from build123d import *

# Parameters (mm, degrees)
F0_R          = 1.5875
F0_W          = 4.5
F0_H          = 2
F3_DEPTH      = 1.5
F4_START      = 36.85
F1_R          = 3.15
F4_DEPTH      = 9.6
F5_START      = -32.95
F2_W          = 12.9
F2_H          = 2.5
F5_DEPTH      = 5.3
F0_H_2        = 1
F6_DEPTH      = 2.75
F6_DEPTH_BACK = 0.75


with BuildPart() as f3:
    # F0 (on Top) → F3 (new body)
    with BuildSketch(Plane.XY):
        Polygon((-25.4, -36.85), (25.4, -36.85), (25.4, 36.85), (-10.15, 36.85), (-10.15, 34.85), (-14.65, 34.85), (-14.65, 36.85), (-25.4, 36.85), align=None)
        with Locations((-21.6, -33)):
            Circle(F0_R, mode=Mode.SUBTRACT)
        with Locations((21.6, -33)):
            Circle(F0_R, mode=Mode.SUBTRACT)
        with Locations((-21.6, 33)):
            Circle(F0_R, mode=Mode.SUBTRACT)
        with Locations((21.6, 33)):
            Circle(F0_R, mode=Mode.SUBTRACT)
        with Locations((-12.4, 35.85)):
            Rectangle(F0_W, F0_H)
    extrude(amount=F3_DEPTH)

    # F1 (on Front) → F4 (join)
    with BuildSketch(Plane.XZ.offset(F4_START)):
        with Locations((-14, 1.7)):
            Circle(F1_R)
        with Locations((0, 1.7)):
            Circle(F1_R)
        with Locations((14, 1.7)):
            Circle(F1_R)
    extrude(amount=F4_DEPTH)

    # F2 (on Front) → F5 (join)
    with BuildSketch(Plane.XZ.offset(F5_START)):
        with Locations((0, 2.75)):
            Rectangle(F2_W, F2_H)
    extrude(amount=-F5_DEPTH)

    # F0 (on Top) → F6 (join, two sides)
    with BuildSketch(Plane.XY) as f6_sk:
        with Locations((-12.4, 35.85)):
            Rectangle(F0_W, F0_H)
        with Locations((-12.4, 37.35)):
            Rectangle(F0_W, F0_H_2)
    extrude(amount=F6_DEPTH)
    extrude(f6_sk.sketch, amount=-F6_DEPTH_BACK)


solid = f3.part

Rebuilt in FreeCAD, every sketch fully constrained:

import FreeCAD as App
import Part
import Sketcher
from FreeCAD import Vector
Q = App.Units.Quantity


def add_polygon(sketch, points):
    """Adds a closed chain of lines whose ends are joined by coincident constraints."""
    first, n = sketch.GeometryCount, len(points)
    for a, b in zip(points, points[1:] + points[:1]):
        sketch.addGeometry(Part.LineSegment(App.Vector(*a, 0), App.Vector(*b, 0)), False)
    for i in range(n):
        sketch.addConstraint(Sketcher.Constraint("Coincident", first + i, 2, first + (i + 1) % n, 1))

doc = App.newDocument("Part")
body = doc.addObject("PartDesign::Body", "Body")

sketch1 = body.newObject("Sketcher::SketchObject", "Sketch")
sketch1.AttachmentSupport = (doc.getObject("XY_Plane"), [""])
sketch1.MapMode = "FlatFace"
add_polygon(sketch1, [(-25.4, -36.85), (25.4, -36.85), (25.4, 36.85), (-25.4, 36.85)])
sketch1.addGeometry(Part.Circle(Vector(-21.6, -33, 0), Vector(0, 0, 1), 1.5875), False)
sketch1.addGeometry(Part.Circle(Vector(21.6, -33, 0), Vector(0, 0, 1), 1.5875), False)
sketch1.addGeometry(Part.Circle(Vector(-21.6, 33, 0), Vector(0, 0, 1), 1.5875), False)
sketch1.addGeometry(Part.Circle(Vector(21.6, 33, 0), Vector(0, 0, 1), 1.5875), False)
sketch1.addConstraint(Sketcher.Constraint("Horizontal", 0))
sketch1.addConstraint(Sketcher.Constraint("Vertical", 1))
sketch1.addConstraint(Sketcher.Constraint("Horizontal", 2))
sketch1.addConstraint(Sketcher.Constraint("Vertical", 3))
sketch1.addConstraint(Sketcher.Constraint("Equal", 4, 5))
sketch1.addConstraint(Sketcher.Constraint("Equal", 5, 6))
sketch1.addConstraint(Sketcher.Constraint("Equal", 6, 7))
sketch1.addConstraint(Sketcher.Constraint("Symmetric", 5, 3, 6, 3, -1, 1))
sketch1.addConstraint(Sketcher.Constraint("Symmetric", 4, 3, 7, 3, -1, 1))
sketch1.addConstraint(Sketcher.Constraint("Symmetric", 0, 2, 2, 2, -1, 1))
sketch1.addConstraint(Sketcher.Constraint("Symmetric", 4, 3, 5, 3, -2))
sketch1.addConstraint(Sketcher.Constraint("Diameter", 4, Q("3.175 mm")))
sketch1.addConstraint(Sketcher.Constraint("DistanceX", 0, 1, 0, 2, Q("50.8 mm")))
sketch1.addConstraint(Sketcher.Constraint("DistanceY", 1, 1, 1, 2, Q("73.7 mm")))
sketch1.addConstraint(Sketcher.Constraint("DistanceY", 4, 3, -1, 1, Q("33 mm")))
sketch1.addConstraint(Sketcher.Constraint("DistanceX", 4, 3, 0, 2, Q("47 mm")))
pad1 = body.newObject("PartDesign::Pad", "Pad")
pad1.Profile = sketch1
pad1.Length = 1.5

sketch2 = body.newObject("Sketcher::SketchObject", "Sketch001")
sketch2.AttachmentSupport = (doc.getObject("XZ_Plane"), [""])
sketch2.MapMode = "FlatFace"
sketch2.AttachmentOffset = App.Placement(Vector(0, 0, 36.85), App.Rotation())
sketch2.addGeometry(Part.Circle(Vector(-14, 1.7, 0), Vector(0, 0, 1), 3.15), False)
sketch2.addGeometry(Part.Circle(Vector(0, 1.7, 0), Vector(0, 0, 1), 3.15), False)
sketch2.addGeometry(Part.Circle(Vector(14, 1.7, 0), Vector(0, 0, 1), 3.15), False)
sketch2.addConstraint(Sketcher.Constraint("Equal", 0, 1))
sketch2.addConstraint(Sketcher.Constraint("Equal", 1, 2))
sketch2.addConstraint(Sketcher.Constraint("Symmetric", 0, 3, 2, 3, -2))
sketch2.addConstraint(Sketcher.Constraint("PointOnObject", 1, 3, -2))
sketch2.addConstraint(Sketcher.Constraint("Horizontal", 0, 3, 1, 3))
sketch2.addConstraint(Sketcher.Constraint("Diameter", 0, Q("6.3 mm")))
sketch2.addConstraint(Sketcher.Constraint("DistanceX", 0, 3, -1, 1, Q("14 mm")))
sketch2.addConstraint(Sketcher.Constraint("DistanceY", -1, 1, 0, 3, Q("1.7 mm")))
pad2 = body.newObject("PartDesign::Pad", "Pad001")
pad2.Profile = sketch2
pad2.Length = 9.6

sketch3 = body.newObject("Sketcher::SketchObject", "Sketch002")
sketch3.AttachmentSupport = (doc.getObject("XZ_Plane"), [""])
sketch3.MapMode = "FlatFace"
sketch3.AttachmentOffset = App.Placement(Vector(0, 0, -32.95), App.Rotation())
add_polygon(sketch3, [(-6.45, 4), (-6.45, 1.5), (6.45, 1.5), (6.45, 4)])
sketch3.addConstraint(Sketcher.Constraint("Vertical", 0))
sketch3.addConstraint(Sketcher.Constraint("Horizontal", 1))
sketch3.addConstraint(Sketcher.Constraint("Vertical", 2))
sketch3.addConstraint(Sketcher.Constraint("Horizontal", 3))
sketch3.addConstraint(Sketcher.Constraint("DistanceX", 1, 1, 1, 2, Q("12.9 mm")))
sketch3.addConstraint(Sketcher.Constraint("DistanceY", 0, 2, 0, 1, Q("2.5 mm")))
sketch3.addConstraint(Sketcher.Constraint("DistanceY", -1, 1, 2, 2, Q("4 mm")))
sketch3.addConstraint(Sketcher.Constraint("DistanceX", 0, 2, -1, 1, Q("6.45 mm")))
pad3 = body.newObject("PartDesign::Pad", "Pad002")
pad3.Profile = sketch3
pad3.Length = 5.3
pad3.Reversed = True

sketch4 = body.newObject("Sketcher::SketchObject", "Sketch003")
sketch4.AttachmentSupport = (doc.getObject("XY_Plane"), [""])
sketch4.MapMode = "FlatFace"
add_polygon(sketch4, [(-14.65, 34.85), (-10.15, 34.85), (-10.15, 37.85), (-14.65, 37.85)])
sketch4.addConstraint(Sketcher.Constraint("Horizontal", 0))
sketch4.addConstraint(Sketcher.Constraint("Vertical", 1))
sketch4.addConstraint(Sketcher.Constraint("Horizontal", 2))
sketch4.addConstraint(Sketcher.Constraint("Vertical", 3))
sketch4.addConstraint(Sketcher.Constraint("DistanceY", 1, 1, 1, 2, Q("3 mm")))
sketch4.addConstraint(Sketcher.Constraint("DistanceX", 0, 1, 0, 2, Q("4.5 mm")))
sketch4.addConstraint(Sketcher.Constraint("DistanceX", 0, 2, -1, 1, Q("10.15 mm")))
sketch4.addConstraint(Sketcher.Constraint("DistanceY", -1, 1, 0, 2, Q("34.85 mm")))
pad4 = body.newObject("PartDesign::Pad", "Pad003")
pad4.Profile = sketch4
pad4.Type = "TwoLengths"
pad4.Length = 2.75
pad4.Length2 = 0.75

doc.recompute()
